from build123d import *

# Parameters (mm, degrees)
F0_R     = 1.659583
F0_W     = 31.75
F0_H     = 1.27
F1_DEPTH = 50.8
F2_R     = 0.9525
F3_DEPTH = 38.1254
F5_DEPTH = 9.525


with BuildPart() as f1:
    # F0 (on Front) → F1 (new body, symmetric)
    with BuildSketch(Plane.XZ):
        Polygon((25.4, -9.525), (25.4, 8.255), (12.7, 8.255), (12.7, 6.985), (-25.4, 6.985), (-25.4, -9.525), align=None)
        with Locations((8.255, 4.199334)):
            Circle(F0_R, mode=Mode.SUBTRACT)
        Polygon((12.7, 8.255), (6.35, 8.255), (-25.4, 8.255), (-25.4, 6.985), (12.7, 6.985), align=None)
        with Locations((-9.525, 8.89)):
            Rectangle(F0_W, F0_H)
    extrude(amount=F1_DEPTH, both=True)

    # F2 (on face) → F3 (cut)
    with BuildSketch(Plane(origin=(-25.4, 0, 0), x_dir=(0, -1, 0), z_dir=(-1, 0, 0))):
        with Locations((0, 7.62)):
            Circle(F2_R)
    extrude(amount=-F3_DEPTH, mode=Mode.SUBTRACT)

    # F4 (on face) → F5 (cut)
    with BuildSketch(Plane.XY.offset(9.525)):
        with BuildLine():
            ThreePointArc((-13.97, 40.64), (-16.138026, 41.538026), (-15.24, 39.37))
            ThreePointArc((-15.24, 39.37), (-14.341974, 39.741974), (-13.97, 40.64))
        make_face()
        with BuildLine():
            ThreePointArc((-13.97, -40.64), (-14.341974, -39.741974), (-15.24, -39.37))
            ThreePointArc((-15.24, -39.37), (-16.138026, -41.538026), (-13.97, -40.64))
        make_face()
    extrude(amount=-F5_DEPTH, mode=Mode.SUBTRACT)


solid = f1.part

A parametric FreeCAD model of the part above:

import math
import FreeCAD as App
import Part
import Sketcher

V = App.Vector
Q = App.Units.Quantity


def add_polygon(sketch, points):
    """Adds a closed chain of lines whose ends are joined by coincident constraints."""
    first, n = sketch.GeometryCount, len(points)
    for a, b in zip(points, points[1:] + points[:1]):
        sketch.addGeometry(Part.LineSegment(App.Vector(*a, 0), App.Vector(*b, 0)), False)
    for i in range(n):
        sketch.addConstraint(Sketcher.Constraint("Coincident", first + i, 2, first + (i + 1) % n, 1))

doc = App.newDocument("Part")
body = doc.addObject("PartDesign::Body", "Body")

# Sketch on XZ plane
sketch1 = doc.addObject("Sketcher::SketchObject", "Sketch")
body.addObject(sketch1)
sketch1.AttachmentSupport = (doc.XZ_Plane, [""])
sketch1.MapMode = "FlatFace"
add_polygon(sketch1, [(25.4, -9.525), (25.4, 8.255), (6.35, 8.255), (6.35, 9.525), (-25.4, 9.525), (-25.4, -9.525)])  # lines 0-5
sketch1.addGeometry(Part.Circle(V(8.255, 4.199334, 0), V(0, 0, 1), 1.659583), False)  # 6
sketch1.addConstraint([
    Sketcher.Constraint("Vertical", 0),
    Sketcher.Constraint("Horizontal", 1),
    Sketcher.Constraint("Vertical", 2),
    Sketcher.Constraint("Horizontal", 3),
    Sketcher.Constraint("Vertical", 4),
    Sketcher.Constraint("Horizontal", 5),
    Sketcher.Constraint("Symmetric", 3, 2, 5, 2, -1, 1),
    Sketcher.Constraint("Equal", 1, 4),
    Sketcher.Constraint("DistanceX", 5, 1, 5, 2, Q("2 in")),
    Sketcher.Constraint("DistanceY", 0, 1, 0, 2, Q("0.7 in")),
    Sketcher.Constraint("DistanceX", 1, 2, 1, 1, Q("0.75 in")),
    Sketcher.Constraint("DistanceX", -1, 1, 6, 3, Q("0.325 in")),
    Sketcher.Constraint("Diameter", 6, 3.319166),
    Sketcher.Constraint("DistanceY", -1, 1, 6, 3, 4.199334),
])
pad1 = doc.addObject("PartDesign::Pad", "Pad")
body.addObject(pad1)
pad1.Profile = sketch1
pad1.Length = Q("4 in")
pad1.Midplane = True

# Sketch on YZ plane
sketch2 = doc.addObject("Sketcher::SketchObject", "Sketch001")
body.addObject(sketch2)
sketch2.AttachmentSupport = (doc.YZ_Plane, [""])
sketch2.MapMode = "FlatFace"
sketch2.AttachmentOffset = App.Placement(V(0, 0, -1 * 25.4), App.Rotation())
sketch2.addGeometry(Part.Circle(V(0, 7.62, 0), V(0, 0, 1), 0.9525), False)
sketch2.addConstraint([
    Sketcher.Constraint("PointOnObject", 0, 3, -2),
    Sketcher.Constraint("Diameter", 0, Q("0.075 in")),
    Sketcher.Constraint("DistanceY", -1, 1, 0, 3, Q("0.3 in")),
])
pocket1 = doc.addObject("PartDesign::Pocket", "Pocket")
body.addObject(pocket1)
pocket1.Profile = sketch2
pocket1.Length = Q("1.501 in")
pocket1.Reversed = True

# Sketch on XY plane
sketch3 = doc.addObject("Sketcher::SketchObject", "Sketch002")
body.addObject(sketch3)
sketch3.AttachmentSupport = (doc.XY_Plane, [""])
sketch3.MapMode = "FlatFace"
sketch3.AttachmentOffset = App.Placement(V(0, 0, 0.375 * 25.4), App.Rotation())
sketch3.addGeometry([
    Part.ArcOfCircle(Part.Circle(V(-15.24, 40.64, 0), V(0, 0, 1), 1.27), math.radians(-0.00001), math.radians(270.00001)),
    Part.ArcOfCircle(Part.Circle(V(-15.239999, 40.639999, 0), V(0, 0, 1), 1.269999), math.radians(-90.00006), math.radians(0.00006)),
    Part.ArcOfCircle(Part.Circle(V(-15.239999, -40.639999, 0), V(0, 0, 1), 1.269999), math.radians(-0.00006), math.radians(90.00006)),
    Part.ArcOfCircle(Part.Circle(V(-15.24, -40.64, 0), V(0, 0, 1), 1.27), math.radians(89.99999), math.radians(360.00001)),
], False)
sketch3.addConstraint([
    Sketcher.Constraint("Tangent", 0, 1, 1, 2),
    Sketcher.Constraint("Coincident", 1, 1, 0, 2),
    Sketcher.Constraint("Tangent", 2, 1, 3, 2),
    Sketcher.Constraint("Coincident", 3, 1, 2, 2),
    Sketcher.Constraint("Equal", 1, 2),
    Sketcher.Constraint("Symmetric", 0, 3, 2, 3, -1),
    Sketcher.Constraint("Horizontal", 1, 3, 0, 1),
    Sketcher.Constraint("Horizontal", 3, 3, 2, 1),
    Sketcher.Constraint("Vertical", 3, 3, 1, 1),
    Sketcher.Constraint("Vertical", 1, 1, 3, 1),
    Sketcher.Constraint("Radius", 0, Q("0.05 in")),
    Sketcher.Constraint("DistanceX", 0, 3, -1, 1, Q("0.6 in")),
    Sketcher.Constraint("DistanceY", -1, 1, 0, 3, Q("1.6 in")),
])
pocket2 = doc.addObject("PartDesign::Pocket", "Pocket001")
body.addObject(pocket2)
pocket2.Profile = sketch3
pocket2.Length = Q("0.375 in")

doc.recompute()
